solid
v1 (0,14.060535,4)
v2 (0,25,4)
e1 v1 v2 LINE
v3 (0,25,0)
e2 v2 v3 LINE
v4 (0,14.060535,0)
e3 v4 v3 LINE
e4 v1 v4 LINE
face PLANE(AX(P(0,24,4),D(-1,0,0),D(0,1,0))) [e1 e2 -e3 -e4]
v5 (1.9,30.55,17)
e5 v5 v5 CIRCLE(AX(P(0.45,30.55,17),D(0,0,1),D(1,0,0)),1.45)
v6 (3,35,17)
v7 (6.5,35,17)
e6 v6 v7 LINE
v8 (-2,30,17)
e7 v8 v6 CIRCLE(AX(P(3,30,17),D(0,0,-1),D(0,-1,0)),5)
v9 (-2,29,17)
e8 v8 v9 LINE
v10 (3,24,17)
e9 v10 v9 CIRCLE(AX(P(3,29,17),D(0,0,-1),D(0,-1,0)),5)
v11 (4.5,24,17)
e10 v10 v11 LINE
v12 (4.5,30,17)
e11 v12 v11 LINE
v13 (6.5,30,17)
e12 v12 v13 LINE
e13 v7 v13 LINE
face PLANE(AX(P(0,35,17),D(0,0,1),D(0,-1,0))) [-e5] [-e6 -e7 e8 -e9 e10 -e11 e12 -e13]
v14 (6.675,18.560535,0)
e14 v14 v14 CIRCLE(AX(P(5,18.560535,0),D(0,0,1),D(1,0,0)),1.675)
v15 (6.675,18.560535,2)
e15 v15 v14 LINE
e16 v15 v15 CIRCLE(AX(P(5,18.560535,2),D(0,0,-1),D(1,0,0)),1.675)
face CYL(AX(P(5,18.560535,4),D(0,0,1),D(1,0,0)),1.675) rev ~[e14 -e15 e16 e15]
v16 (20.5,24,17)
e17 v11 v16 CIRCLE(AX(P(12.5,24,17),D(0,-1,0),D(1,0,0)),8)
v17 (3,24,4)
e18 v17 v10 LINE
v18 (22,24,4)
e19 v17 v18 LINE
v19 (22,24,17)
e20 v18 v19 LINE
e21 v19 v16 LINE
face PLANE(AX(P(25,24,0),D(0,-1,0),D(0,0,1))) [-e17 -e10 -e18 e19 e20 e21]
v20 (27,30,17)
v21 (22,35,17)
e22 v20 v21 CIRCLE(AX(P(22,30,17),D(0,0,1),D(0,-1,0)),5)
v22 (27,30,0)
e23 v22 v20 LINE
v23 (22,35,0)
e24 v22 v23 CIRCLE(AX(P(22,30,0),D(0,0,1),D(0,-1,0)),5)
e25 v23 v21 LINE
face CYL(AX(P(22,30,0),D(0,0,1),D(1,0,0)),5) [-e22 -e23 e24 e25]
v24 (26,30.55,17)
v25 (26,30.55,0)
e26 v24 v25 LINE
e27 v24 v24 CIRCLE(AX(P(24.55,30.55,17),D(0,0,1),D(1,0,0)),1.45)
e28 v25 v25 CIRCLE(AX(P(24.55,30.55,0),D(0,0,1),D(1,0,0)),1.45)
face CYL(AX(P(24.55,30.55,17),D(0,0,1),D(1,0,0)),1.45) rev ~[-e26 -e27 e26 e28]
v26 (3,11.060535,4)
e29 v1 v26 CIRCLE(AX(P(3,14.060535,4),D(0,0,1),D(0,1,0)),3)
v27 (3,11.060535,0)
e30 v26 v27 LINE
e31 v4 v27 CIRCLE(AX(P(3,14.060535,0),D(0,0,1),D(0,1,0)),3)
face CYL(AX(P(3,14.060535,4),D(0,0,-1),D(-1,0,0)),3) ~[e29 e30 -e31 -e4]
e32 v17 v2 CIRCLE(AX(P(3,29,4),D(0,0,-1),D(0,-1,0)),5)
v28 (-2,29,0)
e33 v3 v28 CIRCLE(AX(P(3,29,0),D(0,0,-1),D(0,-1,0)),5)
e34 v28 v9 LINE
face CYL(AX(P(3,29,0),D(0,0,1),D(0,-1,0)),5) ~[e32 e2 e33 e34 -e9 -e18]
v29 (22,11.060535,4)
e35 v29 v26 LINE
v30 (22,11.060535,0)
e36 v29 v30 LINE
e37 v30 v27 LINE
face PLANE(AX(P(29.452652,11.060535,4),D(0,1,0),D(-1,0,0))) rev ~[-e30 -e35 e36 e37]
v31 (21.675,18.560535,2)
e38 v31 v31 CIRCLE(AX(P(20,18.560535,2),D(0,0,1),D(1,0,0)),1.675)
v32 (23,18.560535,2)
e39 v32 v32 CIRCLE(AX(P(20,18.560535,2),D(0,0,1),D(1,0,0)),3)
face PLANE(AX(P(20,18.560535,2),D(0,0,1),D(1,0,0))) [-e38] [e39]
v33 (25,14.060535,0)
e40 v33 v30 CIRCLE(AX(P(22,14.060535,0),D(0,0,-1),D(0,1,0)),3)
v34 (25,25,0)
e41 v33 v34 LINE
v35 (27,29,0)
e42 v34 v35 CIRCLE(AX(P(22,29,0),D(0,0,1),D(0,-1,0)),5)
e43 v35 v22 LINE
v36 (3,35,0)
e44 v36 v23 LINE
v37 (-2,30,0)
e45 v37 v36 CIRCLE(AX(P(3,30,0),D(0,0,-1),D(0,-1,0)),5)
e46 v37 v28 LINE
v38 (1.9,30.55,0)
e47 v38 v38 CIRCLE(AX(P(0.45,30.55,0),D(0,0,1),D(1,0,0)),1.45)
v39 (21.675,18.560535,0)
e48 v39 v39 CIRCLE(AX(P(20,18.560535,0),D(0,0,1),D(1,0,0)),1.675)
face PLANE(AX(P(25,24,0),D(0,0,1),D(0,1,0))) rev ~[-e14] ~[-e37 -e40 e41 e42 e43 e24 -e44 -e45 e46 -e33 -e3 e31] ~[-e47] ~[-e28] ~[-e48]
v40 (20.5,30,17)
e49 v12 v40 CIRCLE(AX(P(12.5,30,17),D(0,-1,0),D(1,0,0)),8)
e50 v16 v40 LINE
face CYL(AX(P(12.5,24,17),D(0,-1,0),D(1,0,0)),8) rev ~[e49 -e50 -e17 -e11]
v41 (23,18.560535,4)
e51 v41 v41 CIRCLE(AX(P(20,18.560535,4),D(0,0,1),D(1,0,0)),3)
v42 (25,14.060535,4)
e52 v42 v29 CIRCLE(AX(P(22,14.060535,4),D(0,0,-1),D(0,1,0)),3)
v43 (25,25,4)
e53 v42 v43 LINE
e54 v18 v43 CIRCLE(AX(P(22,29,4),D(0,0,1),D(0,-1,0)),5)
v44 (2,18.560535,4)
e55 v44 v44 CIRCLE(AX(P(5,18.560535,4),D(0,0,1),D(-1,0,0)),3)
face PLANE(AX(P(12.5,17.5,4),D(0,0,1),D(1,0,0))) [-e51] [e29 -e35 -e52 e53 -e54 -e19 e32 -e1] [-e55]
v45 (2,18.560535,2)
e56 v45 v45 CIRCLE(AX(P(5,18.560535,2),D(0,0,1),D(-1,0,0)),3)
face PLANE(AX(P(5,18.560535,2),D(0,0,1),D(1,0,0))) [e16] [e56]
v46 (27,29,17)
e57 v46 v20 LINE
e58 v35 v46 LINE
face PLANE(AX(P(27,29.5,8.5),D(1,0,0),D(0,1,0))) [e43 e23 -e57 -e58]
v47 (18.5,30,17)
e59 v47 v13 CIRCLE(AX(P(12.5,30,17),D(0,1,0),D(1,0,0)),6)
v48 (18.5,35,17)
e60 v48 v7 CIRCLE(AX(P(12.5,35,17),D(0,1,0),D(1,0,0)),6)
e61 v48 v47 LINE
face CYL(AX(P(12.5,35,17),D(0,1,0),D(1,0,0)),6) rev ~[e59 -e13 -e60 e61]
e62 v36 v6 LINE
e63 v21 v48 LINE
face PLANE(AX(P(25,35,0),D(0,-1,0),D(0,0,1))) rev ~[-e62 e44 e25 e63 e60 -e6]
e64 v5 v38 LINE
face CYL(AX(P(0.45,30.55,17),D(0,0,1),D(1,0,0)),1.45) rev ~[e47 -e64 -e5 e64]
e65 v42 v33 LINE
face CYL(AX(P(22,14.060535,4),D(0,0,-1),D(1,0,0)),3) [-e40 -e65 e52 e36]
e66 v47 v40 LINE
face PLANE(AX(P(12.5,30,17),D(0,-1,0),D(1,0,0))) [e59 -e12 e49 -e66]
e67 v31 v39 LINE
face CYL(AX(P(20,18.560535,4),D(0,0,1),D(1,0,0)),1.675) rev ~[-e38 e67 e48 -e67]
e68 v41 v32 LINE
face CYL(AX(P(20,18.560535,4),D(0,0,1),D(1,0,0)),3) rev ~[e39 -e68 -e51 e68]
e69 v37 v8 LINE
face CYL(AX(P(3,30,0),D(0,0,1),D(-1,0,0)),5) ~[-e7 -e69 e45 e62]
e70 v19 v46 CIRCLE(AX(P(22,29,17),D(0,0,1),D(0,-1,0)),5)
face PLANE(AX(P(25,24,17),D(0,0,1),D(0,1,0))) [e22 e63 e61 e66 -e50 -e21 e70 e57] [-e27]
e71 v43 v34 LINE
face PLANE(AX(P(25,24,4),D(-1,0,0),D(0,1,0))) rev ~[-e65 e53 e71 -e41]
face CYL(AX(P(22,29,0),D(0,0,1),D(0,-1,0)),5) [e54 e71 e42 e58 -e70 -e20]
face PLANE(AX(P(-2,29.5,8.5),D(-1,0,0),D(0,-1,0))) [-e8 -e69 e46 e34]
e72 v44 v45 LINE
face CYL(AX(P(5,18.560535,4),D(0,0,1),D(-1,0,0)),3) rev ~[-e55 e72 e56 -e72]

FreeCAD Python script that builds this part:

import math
import FreeCAD as App
import Part
import Sketcher

V = App.Vector


def edges_at(feature, points):
    """Names of the edges that pass closest to the given points."""
    edges = feature.Shape.Edges
    near = lambda p: min(range(len(edges)), key=lambda i: edges[i].distToShape(Part.Vertex(*p))[0])
    return sorted({f"Edge{near(p) + 1}" for p in points})

doc = App.newDocument("Part")
body = doc.addObject("PartDesign::Body", "Body")

# Sketch on XY plane
sketch1 = body.newObject("Sketcher::SketchObject", "Sketch")
sketch1.AttachmentSupport = (doc.getObject("XY_Plane"), [""])
sketch1.MapMode = "FlatFace"
sketch1.addGeometry([
    Part.LineSegment(V(0, 35, 0), V(0, 0, 0)),
    Part.LineSegment(V(0, 0, 0), V(25, 0, 0)),
    Part.LineSegment(V(25, 0, 0), V(25, 35, 0)),
    Part.LineSegment(V(25, 35, 0), V(0, 35, 0)),
], False)
sketch1.addConstraint([
    Sketcher.Constraint("Coincident", 0, 2, 1, 1),
    Sketcher.Constraint("Coincident", 1, 2, 2, 1),
    Sketcher.Constraint("Coincident", 2, 2, 3, 1),
    Sketcher.Constraint("Coincident", 3, 2, 0, 1),
    Sketcher.Constraint("Vertical", 0),
    Sketcher.Constraint("Horizontal", 1),
    Sketcher.Constraint("Vertical", 2),
    Sketcher.Constraint("Horizontal", 3),
    Sketcher.Constraint("Coincident", 0, 2, -1, 1),
    Sketcher.Constraint("DistanceX", 1, 1, 1, 2, 25.0),
    Sketcher.Constraint("DistanceY", 0, 2, 0, 1, 35.0),
])
pad1 = body.newObject("PartDesign::Pad", "Pad")
pad1.Profile = sketch1
pad1.Length = 4

# Sketch on XY plane
sketch2 = body.newObject("Sketcher::SketchObject", "Sketch001")
sketch2.AttachmentSupport = (doc.getObject("XY_Plane"), [""])
sketch2.MapMode = "FlatFace"
sketch2.AttachmentOffset = App.Placement(V(0, 0, 4), App.Rotation())
sketch2.addGeometry([
    Part.Circle(V(5, 18.6, 0), V(0, 0, 1), 1.7),
    Part.Circle(V(20, 18.6, 0), V(0, 0, 1), 1.7),
    Part.Circle(V(20, 3.6, 0), V(0, 0, 1), 1.7),
    Part.Circle(V(5, 3.6, 0), V(0, 0, 1), 1.7),
], False)
sketch2.addConstraint([
    Sketcher.Constraint("Equal", 0, 1),
    Sketcher.Constraint("Equal", 1, 2),
    Sketcher.Constraint("Equal", 2, 3),
    Sketcher.Constraint("Horizontal", 0, 3, 1, 3),
    Sketcher.Constraint("Horizontal", 2, 3, 3, 3),
    Sketcher.Constraint("Vertical", 1, 3, 2, 3),
    Sketcher.Constraint("Vertical", 0, 3, 3, 3),
    Sketcher.Constraint("Diameter", 0, 3.35),
    Sketcher.Constraint("DistanceX", -1, 1, 0, 3, 5.0),
    Sketcher.Constraint("DistanceX", -1, 1, 1, 3, 20.0),
    Sketcher.Constraint("DistanceY", 2, 3, 1, 3, 15.0),
    Sketcher.Constraint("DistanceY", -1, 1, 0, 3, 18.560535),
])
pocket1 = body.newObject("PartDesign::Pocket", "Pocket")
pocket1.Profile = sketch2
pocket1.Length = 25

# Sketch on XY plane
sketch3 = body.newObject("Sketcher::SketchObject", "Sketch002")
sketch3.AttachmentSupport = (doc.getObject("XY_Plane"), [""])
sketch3.MapMode = "FlatFace"
sketch3.AttachmentOffset = App.Placement(V(0, 0, 4), App.Rotation())
sketch3.addGeometry([
    Part.LineSegment(V(0, 35, 0), V(0, 24, 0)),
    Part.LineSegment(V(0, 24, 0), V(25, 24, 0)),
    Part.LineSegment(V(25, 24, 0), V(25, 35, 0)),
    Part.LineSegment(V(25, 35, 0), V(0, 35, 0)),
], False)
sketch3.addConstraint([
    Sketcher.Constraint("Coincident", 0, 2, 1, 1),
    Sketcher.Constraint("Coincident", 1, 2, 2, 1),
    Sketcher.Constraint("Coincident", 2, 2, 3, 1),
    Sketcher.Constraint("Coincident", 3, 2, 0, 1),
    Sketcher.Constraint("Vertical", 0),
    Sketcher.Constraint("Horizontal", 1),
    Sketcher.Constraint("Vertical", 2),
    Sketcher.Constraint("Horizontal", 3),
    Sketcher.Constraint("PointOnObject", 0, 2, -2),
    Sketcher.Constraint("DistanceX", 1, 1, 1, 2, 25.0),
    Sketcher.Constraint("DistanceY", 0, 2, 0, 1, 11.0),
    Sketcher.Constraint("DistanceY", -1, 1, 0, 2, 24.0),
])
pad2 = body.newObject("PartDesign::Pad", "Pad001")
pad2.Profile = sketch3
pad2.Length = 13

# Sketch on XZ plane
sketch4 = body.newObject("Sketcher::SketchObject", "Sketch003")
sketch4.AttachmentSupport = (doc.getObject("XZ_Plane"), [""])
sketch4.MapMode = "FlatFace"
sketch4.AttachmentOffset = App.Placement(V(0, 0, -35), App.Rotation())
sketch4.addGeometry([
    Part.ArcOfCircle(Part.Circle(V(12, 17, 0), V(0, 0, 1), 6), math.radians(180), math.radians(360)),
    Part.LineSegment(V(6, 17, 0), V(18, 17, 0)),
], False)
sketch4.addConstraint([
    Sketcher.Constraint("Coincident", 0, 1, 1, 1),
    Sketcher.Constraint("Coincident", 1, 2, 0, 2),
    Sketcher.Constraint("Horizontal", 1),
    Sketcher.Constraint("Radius", 0, 6.0),
    Sketcher.Constraint("DistanceY", -1, 1, 0, 3, 17.0),
    Sketcher.Constraint("DistanceY", -1, 1, 0, 1, 17.0),
    Sketcher.Constraint("DistanceX", -1, 1, 0, 3, 12.5),
])
pocket2 = body.newObject("PartDesign::Pocket", "Pocket001")
pocket2.Profile = sketch4
pocket2.Length = 6
pocket2.Reversed = True

# Sketch on XZ plane
sketch5 = body.newObject("Sketcher::SketchObject", "Sketch004")
sketch5.AttachmentSupport = (doc.getObject("XZ_Plane"), [""])
sketch5.MapMode = "FlatFace"
sketch5.AttachmentOffset = App.Placement(V(0, 0, -24), App.Rotation())
sketch5.addGeometry(Part.Circle(V(12, 17, 0), V(0, 0, 1), 8), False)
sketch5.addConstraint([
    Sketcher.Constraint("Diameter", 0, 16.0),
    Sketcher.Constraint("DistanceY", -1, 1, 0, 3, 17.0),
    Sketcher.Constraint("DistanceX", -1, 1, 0, 3, 12.5),
])
pocket3 = body.newObject("PartDesign::Pocket", "Pocket002")
pocket3.Profile = sketch5
pocket3.Length = 6

# Sketch on XY plane
sketch6 = body.newObject("Sketcher::SketchObject", "Sketch005")
sketch6.AttachmentSupport = (doc.getObject("XY_Plane"), [""])
sketch6.MapMode = "FlatFace"
sketch6.AttachmentOffset = App.Placement(V(0, 0, 4), App.Rotation())
sketch6.addGeometry([
    Part.Circle(V(5, 18.6, 0), V(0, 0, 1), 3),  # 0
    Part.Circle(V(5, 18.6, 0), V(0, 0, 1), 1.7),  # 1
    Part.Circle(V(20, 18.6, 0), V(0, 0, 1), 3),  # 2
    Part.Circle(V(20, 18.6, 0), V(0, 0, 1), 1.7),  # 3
    Part.Circle(V(20, 3.6, 0), V(0, 0, 1), 3),  # 4
    Part.Circle(V(20, 3.6, 0), V(0, 0, 1), 1.7),  # 5
    Part.Circle(V(5, 3.6, 0), V(0, 0, 1), 3),  # 6
    Part.Circle(V(5, 3.6, 0), V(0, 0, 1), 1.7),  # 7
], False)
sketch6.addConstraint([
    Sketcher.Constraint("Coincident", 1, 3, 0, 3),
    Sketcher.Constraint("Coincident", 3, 3, 2, 3),
    Sketcher.Constraint("Coincident", 5, 3, 4, 3),
    Sketcher.Constraint("Coincident", 7, 3, 6, 3),
    Sketcher.Constraint("Equal", 0, 2),
    Sketcher.Constraint("Equal", 1, 3),
    Sketcher.Constraint("Equal", 2, 4),
    Sketcher.Constraint("Equal", 3, 5),
    Sketcher.Constraint("Equal", 4, 6),
    Sketcher.Constraint("Equal", 5, 7),
    Sketcher.Constraint("Horizontal", 1, 3, 2, 3),
    Sketcher.Constraint("Horizontal", 5, 3, 6, 3),
    Sketcher.Constraint("Vertical", 3, 3, 4, 3),
    Sketcher.Constraint("Vertical", 1, 3, 6, 3),
    Sketcher.Constraint("Diameter", 0, 6.0),
    Sketcher.Constraint("Diameter", 1, 3.35),
    Sketcher.Constraint("DistanceX", -1, 1, 0, 3, 5.0),
    Sketcher.Constraint("DistanceX", -1, 1, 2, 3, 20.0),
    Sketcher.Constraint("DistanceY", 4, 3, 2, 3, 15.0),
    Sketcher.Constraint("DistanceY", -1, 1, 0, 3, 18.560535),
])
pocket4 = body.newObject("PartDesign::Pocket", "Pocket003")
pocket4.Profile = sketch6
pocket4.Length = 2
doc.recompute()

fillet = body.newObject("PartDesign::Fillet", "Fillet")
fillet.Base = (pocket4, edges_at(pocket4, [(0, 0, 2), (25, 0, 2)]))
fillet.Radius = 5

# Sketch on YZ plane
sketch7 = body.newObject("Sketcher::SketchObject", "Sketch006")
sketch7.AttachmentSupport = (doc.getObject("YZ_Plane"), [""])
sketch7.MapMode = "FlatFace"
sketch7.addGeometry([
    Part.LineSegment(V(35, 17, 0), V(35, 0, 0)),
    Part.LineSegment(V(35, 0, 0), V(24, 0, 0)),
    Part.LineSegment(V(24, 0, 0), V(24, 17, 0)),
    Part.LineSegment(V(24, 17, 0), V(35, 17, 0)),
], False)
sketch7.addConstraint([
    Sketcher.Constraint("Coincident", 0, 2, 1, 1),
    Sketcher.Constraint("Coincident", 1, 2, 2, 1),
    Sketcher.Constraint("Coincident", 2, 2, 3, 1),
    Sketcher.Constraint("Coincident", 3, 2, 0, 1),
    Sketcher.Constraint("Vertical", 0),
    Sketcher.Constraint("Horizontal", 1),
    Sketcher.Constraint("Vertical", 2),
    Sketcher.Constraint("Horizontal", 3),
    Sketcher.Constraint("PointOnObject", 0, 2, -1),
    Sketcher.Constraint("DistanceX", 1, 2, 1, 1, 11.0),
    Sketcher.Constraint("DistanceY", 0, 2, 0, 1, 17.0),
    Sketcher.Constraint("DistanceX", -1, 1, 0, 2, 35.0),
])
pad3 = body.newObject("PartDesign::Pad", "Pad002")
pad3.Profile = sketch7
pad3.Length = 2
pad3.Reversed = True

# Sketch on YZ plane
sketch8 = body.newObject("Sketcher::SketchObject", "Sketch007")
sketch8.AttachmentSupport = (doc.getObject("YZ_Plane"), [""])
sketch8.MapMode = "FlatFace"
sketch8.AttachmentOffset = App.Placement(V(0, 0, 25), App.Rotation())
sketch8.addGeometry([
    Part.LineSegment(V(24, 17, 0), V(24, 0, 0)),
    Part.LineSegment(V(24, 0, 0), V(35, 0, 0)),
    Part.LineSegment(V(35, 0, 0), V(35, 17, 0)),
    Part.LineSegment(V(35, 17, 0), V(24, 17, 0)),
], False)
sketch8.addConstraint([
    Sketcher.Constraint("Coincident", 0, 2, 1, 1),
    Sketcher.Constraint("Coincident", 1, 2, 2, 1),
    Sketcher.Constraint("Coincident", 2, 2, 3, 1),
    Sketcher.Constraint("Coincident", 3, 2, 0, 1),
    Sketcher.Constraint("Vertical", 0),
    Sketcher.Constraint("Horizontal", 1),
    Sketcher.Constraint("Vertical", 2),
    Sketcher.Constraint("Horizontal", 3),
    Sketcher.Constraint("PointOnObject", 0, 2, -1),
    Sketcher.Constraint("DistanceX", 1, 1, 1, 2, 11.0),
    Sketcher.Constraint("DistanceY", 0, 2, 0, 1, 17.0),
    Sketcher.Constraint("DistanceX", -1, 1, 0, 2, 24.0),
])
pad4 = body.newObject("PartDesign::Pad", "Pad003")
pad4.Profile = sketch8
pad4.Length = 2

# Sketch on XY plane
sketch9 = body.newObject("Sketcher::SketchObject", "Sketch008")
sketch9.AttachmentSupport = (doc.getObject("XY_Plane"), [""])
sketch9.MapMode = "FlatFace"
sketch9.AttachmentOffset = App.Placement(V(0, 0, 17), App.Rotation())
sketch9.addGeometry([
    Part.Circle(V(0.5, 30.6, 0), V(0, 0, 1), 1.4),
    Part.Circle(V(24.6, 30.6, 0), V(0, 0, 1), 1.4),
], False)
sketch9.addConstraint([
    Sketcher.Constraint("Equal", 0, 1),
    Sketcher.Constraint("Horizontal", 0, 3, 1, 3),
    Sketcher.Constraint("Diameter", 0, 2.9),
    Sketcher.Constraint("DistanceX", 0, 3, 1, 3, 24.1),
    Sketcher.Constraint("DistanceX", -1, 1, 0, 3, 0.45),
    Sketcher.Constraint("DistanceY", -1, 1, 0, 3, 30.55),
])
pocket5 = body.newObject("PartDesign::Pocket", "Pocket004")
pocket5.Profile = sketch9
pocket5.Length = 25
doc.recompute()

fillet2 = body.newObject("PartDesign::Fillet", "Fillet001")
fillet2.Base = (pocket5, edges_at(pocket5, [
    (-2, 24, 8.5),
    (-2, 35, 8.5),
    (27, 35, 8.5),
    (27, 24, 8.5),
]))
fillet2.Radius = 5

# Sketch on XY plane
sketch10 = body.newObject("Sketcher::SketchObject", "Sketch009")
sketch10.AttachmentSupport = (doc.getObject("XY_Plane"), [""])
sketch10.MapMode = "FlatFace"
sketch10.AttachmentOffset = App.Placement(V(0, 0, 4), App.Rotation())
sketch10.addGeometry([
    Part.LineSegment(V(0, 11, 0), V(0, -5, 0)),
    Part.LineSegment(V(0, -5, 0), V(29, -5, 0)),
    Part.LineSegment(V(29, -5, 0), V(29, 11, 0)),
    Part.LineSegment(V(29, 11, 0), V(0, 11, 0)),
], False)
sketch10.addConstraint([
    Sketcher.Constraint("Coincident", 0, 2, 1, 1),
    Sketcher.Constraint("Coincident", 1, 2, 2, 1),
    Sketcher.Constraint("Coincident", 2, 2, 3, 1),
    Sketcher.Constraint("Coincident", 3, 2, 0, 1),
    Sketcher.Constraint("Vertical", 0),
    Sketcher.Constraint("Horizontal", 1),
    Sketcher.Constraint("Vertical", 2),
    Sketcher.Constraint("Horizontal", 3),
    Sketcher.Constraint("PointOnObject", 0, 2, -2),
    Sketcher.Constraint("DistanceX", 1, 1, 1, 2, 29.452652),
    Sketcher.Constraint("DistanceY", 0, 2, 0, 1, 15.786561),
    Sketcher.Constraint("DistanceY", 0, 2, -1, 1, 4.726027),
])
pocket6 = body.newObject("PartDesign::Pocket", "Pocket005")
pocket6.Profile = sketch10
pocket6.Length = 25
doc.recompute()

fillet3 = body.newObject("PartDesign::Fillet", "Fillet002")
fillet3.Base = (pocket6, edges_at(pocket6, [(0, 11.061, 2), (25, 11.061, 2)]))
fillet3.Radius = 3

doc.recompute()
